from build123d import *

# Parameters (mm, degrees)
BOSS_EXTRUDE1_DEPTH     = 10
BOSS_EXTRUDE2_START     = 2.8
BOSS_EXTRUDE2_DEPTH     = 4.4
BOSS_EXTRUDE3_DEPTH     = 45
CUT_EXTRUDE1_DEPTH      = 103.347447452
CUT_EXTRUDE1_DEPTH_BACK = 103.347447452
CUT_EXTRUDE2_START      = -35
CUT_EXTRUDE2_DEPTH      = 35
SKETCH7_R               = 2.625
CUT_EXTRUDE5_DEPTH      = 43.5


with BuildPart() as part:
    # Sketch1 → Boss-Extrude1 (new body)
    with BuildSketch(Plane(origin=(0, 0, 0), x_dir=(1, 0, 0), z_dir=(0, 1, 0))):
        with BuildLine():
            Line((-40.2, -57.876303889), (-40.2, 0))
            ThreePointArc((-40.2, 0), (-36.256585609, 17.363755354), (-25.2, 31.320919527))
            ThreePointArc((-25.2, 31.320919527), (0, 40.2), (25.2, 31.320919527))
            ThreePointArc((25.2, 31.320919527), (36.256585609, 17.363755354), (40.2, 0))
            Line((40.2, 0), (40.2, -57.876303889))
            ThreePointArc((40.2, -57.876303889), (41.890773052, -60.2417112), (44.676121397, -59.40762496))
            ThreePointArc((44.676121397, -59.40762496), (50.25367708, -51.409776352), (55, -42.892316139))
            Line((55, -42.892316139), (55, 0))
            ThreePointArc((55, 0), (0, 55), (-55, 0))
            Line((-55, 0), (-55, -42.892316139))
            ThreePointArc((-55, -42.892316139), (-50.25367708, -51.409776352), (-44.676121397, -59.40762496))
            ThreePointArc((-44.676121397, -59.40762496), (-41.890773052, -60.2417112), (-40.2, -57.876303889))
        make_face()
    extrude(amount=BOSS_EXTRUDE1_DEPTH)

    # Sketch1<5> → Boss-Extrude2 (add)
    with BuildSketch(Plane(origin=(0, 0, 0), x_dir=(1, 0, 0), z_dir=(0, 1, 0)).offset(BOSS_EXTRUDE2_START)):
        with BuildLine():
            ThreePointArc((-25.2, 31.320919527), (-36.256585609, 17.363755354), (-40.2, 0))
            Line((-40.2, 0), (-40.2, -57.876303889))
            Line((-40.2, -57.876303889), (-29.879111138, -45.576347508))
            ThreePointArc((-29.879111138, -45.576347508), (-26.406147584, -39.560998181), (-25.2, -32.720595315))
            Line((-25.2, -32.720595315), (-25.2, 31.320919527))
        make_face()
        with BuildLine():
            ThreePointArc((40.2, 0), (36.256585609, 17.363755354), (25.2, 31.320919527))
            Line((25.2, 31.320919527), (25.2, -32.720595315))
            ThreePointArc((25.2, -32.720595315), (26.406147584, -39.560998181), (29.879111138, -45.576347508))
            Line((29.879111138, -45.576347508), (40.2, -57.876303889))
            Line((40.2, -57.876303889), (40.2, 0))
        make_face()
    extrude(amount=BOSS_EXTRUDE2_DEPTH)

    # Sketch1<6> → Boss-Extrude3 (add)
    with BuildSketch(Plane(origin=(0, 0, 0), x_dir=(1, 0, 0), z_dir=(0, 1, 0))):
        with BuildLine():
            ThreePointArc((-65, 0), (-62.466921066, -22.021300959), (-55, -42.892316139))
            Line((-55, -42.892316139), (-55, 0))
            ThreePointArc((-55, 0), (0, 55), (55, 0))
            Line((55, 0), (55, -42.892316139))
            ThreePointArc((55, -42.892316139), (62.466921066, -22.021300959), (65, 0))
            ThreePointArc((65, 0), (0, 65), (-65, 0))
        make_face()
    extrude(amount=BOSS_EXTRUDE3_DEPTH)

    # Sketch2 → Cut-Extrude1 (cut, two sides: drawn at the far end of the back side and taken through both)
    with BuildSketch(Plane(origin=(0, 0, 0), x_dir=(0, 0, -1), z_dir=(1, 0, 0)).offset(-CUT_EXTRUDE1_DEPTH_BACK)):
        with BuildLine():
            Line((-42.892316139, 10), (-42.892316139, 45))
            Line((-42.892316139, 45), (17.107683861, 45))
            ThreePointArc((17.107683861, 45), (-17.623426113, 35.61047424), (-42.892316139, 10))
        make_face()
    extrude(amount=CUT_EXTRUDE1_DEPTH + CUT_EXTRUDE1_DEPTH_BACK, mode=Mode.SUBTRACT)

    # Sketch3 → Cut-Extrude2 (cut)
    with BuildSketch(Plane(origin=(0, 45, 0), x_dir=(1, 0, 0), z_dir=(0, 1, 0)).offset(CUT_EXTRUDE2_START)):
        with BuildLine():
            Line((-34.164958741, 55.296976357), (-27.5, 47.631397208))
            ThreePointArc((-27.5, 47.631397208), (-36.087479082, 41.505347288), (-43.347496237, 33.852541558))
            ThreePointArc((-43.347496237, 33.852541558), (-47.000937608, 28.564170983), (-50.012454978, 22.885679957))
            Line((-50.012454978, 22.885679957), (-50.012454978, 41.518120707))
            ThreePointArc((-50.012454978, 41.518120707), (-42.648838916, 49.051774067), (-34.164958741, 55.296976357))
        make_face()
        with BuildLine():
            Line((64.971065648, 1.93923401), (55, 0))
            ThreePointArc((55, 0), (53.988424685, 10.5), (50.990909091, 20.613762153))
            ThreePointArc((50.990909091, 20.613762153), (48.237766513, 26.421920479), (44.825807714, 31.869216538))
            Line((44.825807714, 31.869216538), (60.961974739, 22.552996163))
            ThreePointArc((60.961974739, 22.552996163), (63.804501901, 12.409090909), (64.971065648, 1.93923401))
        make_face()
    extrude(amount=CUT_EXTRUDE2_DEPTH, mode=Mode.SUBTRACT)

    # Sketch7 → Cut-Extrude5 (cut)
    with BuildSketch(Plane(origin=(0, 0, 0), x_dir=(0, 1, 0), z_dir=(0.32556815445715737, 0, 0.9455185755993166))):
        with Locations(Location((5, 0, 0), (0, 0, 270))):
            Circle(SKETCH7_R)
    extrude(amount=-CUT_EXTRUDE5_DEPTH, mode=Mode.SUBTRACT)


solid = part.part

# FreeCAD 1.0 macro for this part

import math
import FreeCAD as App
import Part
import Sketcher
from FreeCAD import Vector
Q = App.Units.Quantity

doc = App.newDocument("Part")
body = doc.addObject("PartDesign::Body", "Body")

# Sketch on XZ plane
sketch1 = body.newObject("Sketcher::SketchObject", "Sketch")
sketch1.AttachmentSupport = (doc.getObject("XZ_Plane"), [""])
sketch1.MapMode = "FlatFace"
sketch1.addGeometry(Part.LineSegment(Vector(-40.2, 57.9, 0), Vector(-40.2, 0, 0)), False)
sketch1.addGeometry(Part.ArcOfCircle(Part.Circle(Vector(0, 0, 0), Vector(0, 0, 1), 40.2), math.radians(180), math.radians(231)), False)
sketch1.addGeometry(Part.ArcOfCircle(Part.Circle(Vector(0, 0, 0), Vector(0, 0, 1), 40.2), math.radians(-129), math.radians(-51)), False)
sketch1.addGeometry(Part.ArcOfCircle(Part.Circle(Vector(0, 0, 0), Vector(0, 0, 1), 40.2), math.radians(-51), math.radians(0)), False)
sketch1.addGeometry(Part.LineSegment(Vector(40.2, 0, 0), Vector(40.2, 57.9, 0)), False)
sketch1.addGeometry(Part.ArcOfCircle(Part.Circle(Vector(42.7, 57.9, 0), Vector(0, 0, 1), 2.5), math.radians(38), math.radians(180)), False)
sketch1.addGeometry(Part.ArcOfCircle(Part.Circle(Vector(-32, 0, 0), Vector(0, 0, 1), 97), math.radians(26.25), math.radians(37.77)), False)
sketch1.addGeometry(Part.LineSegment(Vector(55, 42.9, 0), Vector(55, 0, 0)), False)
sketch1.addGeometry(Part.ArcOfCircle(Part.Circle(Vector(0, 0, 0), Vector(0, 0, 1), 55), math.radians(180), math.radians(360)), False)
sketch1.addGeometry(Part.LineSegment(Vector(-55, 0, 0), Vector(-55, 42.9, 0)), False)
sketch1.addGeometry(Part.ArcOfCircle(Part.Circle(Vector(32, 0, 0), Vector(0, 0, 1), 97), math.radians(142.23), math.radians(153.75)), False)
sketch1.addGeometry(Part.ArcOfCircle(Part.Circle(Vector(-42.7, 57.9, 0), Vector(0, 0, 1), 2.5), math.radians(0), math.radians(142)), False)
sketch1.addConstraint(Sketcher.Constraint("Tangent", 0, 2, 1, 1))
sketch1.addConstraint(Sketcher.Constraint("Tangent", 1, 2, 2, 1))
sketch1.addConstraint(Sketcher.Constraint("Tangent", 2, 2, 3, 1))
sketch1.addConstraint(Sketcher.Constraint("Tangent", 3, 2, 4, 1))
sketch1.addConstraint(Sketcher.Constraint("Tangent", 4, 2, 5, 2))
sketch1.addConstraint(Sketcher.Constraint("Tangent", 5, 1, 6, 2))
sketch1.addConstraint(Sketcher.Constraint("Coincident", 6, 1, 7, 1))
sketch1.addConstraint(Sketcher.Constraint("Tangent", 7, 2, 8, 2))
sketch1.addConstraint(Sketcher.Constraint("Tangent", 8, 1, 9, 1))
sketch1.addConstraint(Sketcher.Constraint("Coincident", 9, 2, 10, 2))
sketch1.addConstraint(Sketcher.Constraint("Tangent", 10, 1, 11, 2))
sketch1.addConstraint(Sketcher.Constraint("Tangent", 11, 1, 0, 1))
sketch1.addConstraint(Sketcher.Constraint("Vertical", 0))
sketch1.addConstraint(Sketcher.Constraint("Vertical", 4))
sketch1.addConstraint(Sketcher.Constraint("Vertical", 7))
sketch1.addConstraint(Sketcher.Constraint("Vertical", 9))
sketch1.addConstraint(Sketcher.Constraint("Coincident", 1, 3, -1, 1))
sketch1.addConstraint(Sketcher.Constraint("Coincident", 3, 3, -1, 1))
sketch1.addConstraint(Sketcher.Constraint("Coincident", 8, 3, -1, 1))
sketch1.addConstraint(Sketcher.Constraint("Equal", 6, 10))
sketch1.addConstraint(Sketcher.Constraint("Equal", 5, 11))
sketch1.addConstraint(Sketcher.Constraint("Symmetric", 6, 3, 10, 3, -1, 1))
sketch1.addConstraint(Sketcher.Constraint("PointOnObject", 6, 3, -1))
sketch1.addConstraint(Sketcher.Constraint("Horizontal", 1, 2, 2, 2))
sketch1.addConstraint(Sketcher.Constraint("Radius", 8, Q("55 mm")))
sketch1.addConstraint(Sketcher.Constraint("Radius", 1, Q("40.2 mm")))
sketch1.addConstraint(Sketcher.Constraint("Radius", 5, Q("2.5 mm")))
sketch1.addConstraint(Sketcher.Constraint("DistanceX", 0, 2, 1, 2, Q("15 mm")))
sketch1.addConstraint(Sketcher.Constraint("Radius", 6, Q("96.987539 mm")))
sketch1.addConstraint(Sketcher.Constraint("DistanceY", 0, 2, 0, 1, Q("57.876304 mm")))
pad1 = body.newObject("PartDesign::Pad", "Pad")
pad1.Profile = sketch1
pad1.Length = 10
pad1.Reversed = True

# Sketch on XZ plane
sketch2 = body.newObject("Sketcher::SketchObject", "Sketch001")
sketch2.AttachmentSupport = (doc.getObject("XZ_Plane"), [""])
sketch2.MapMode = "FlatFace"
sketch2.AttachmentOffset = App.Placement(Vector(0, 0, -2.8), App.Rotation())
sketch2.addGeometry(Part.ArcOfCircle(Part.Circle(Vector(0, 0, 0), Vector(0, 0, 1), 40), math.radians(180), math.radians(231)), False)
sketch2.addGeometry(Part.LineSegment(Vector(-40, 0, 0), Vector(-40, 58, 0)), False)
sketch2.addGeometry(Part.LineSegment(Vector(-40, 58, 0), Vector(-30, 46, 0)), False)
sketch2.addGeometry(Part.ArcOfCircle(Part.Circle(Vector(-45, 33, 0), Vector(0, 0, 1), 20), math.radians(0), math.radians(40)), False)
sketch2.addGeometry(Part.LineSegment(Vector(-25, 33, 0), Vector(-25, -31, 0)), False)
sketch2.addGeometry(Part.ArcOfCircle(Part.Circle(Vector(0, 0, 0), Vector(0, 0, 1), 40), math.radians(-51), math.radians(0)), False)
sketch2.addGeometry(Part.LineSegment(Vector(25, -31, 0), Vector(25, 33, 0)), False)
sketch2.addGeometry(Part.ArcOfCircle(Part.Circle(Vector(45, 33, 0), Vector(0, 0, 1), 20), math.radians(140), math.radians(180)), False)
sketch2.addGeometry(Part.LineSegment(Vector(30, 46, 0), Vector(40, 58, 0)), False)
sketch2.addGeometry(Part.LineSegment(Vector(40, 58, 0), Vector(40, 0, 0)), False)
sketch2.addConstraint(Sketcher.Constraint("Tangent", 0, 1, 1, 1))
sketch2.addConstraint(Sketcher.Constraint("Coincident", 1, 2, 2, 1))
sketch2.addConstraint(Sketcher.Constraint("Tangent", 2, 2, 3, 2))
sketch2.addConstraint(Sketcher.Constraint("Tangent", 3, 1, 4, 1))
sketch2.addConstraint(Sketcher.Constraint("Coincident", 4, 2, 0, 2))
sketch2.addConstraint(Sketcher.Constraint("Coincident", 5, 1, 6, 1))
sketch2.addConstraint(Sketcher.Constraint("Tangent", 6, 2, 7, 2))
sketch2.addConstraint(Sketcher.Constraint("Tangent", 7, 1, 8, 1))
sketch2.addConstraint(Sketcher.Constraint("Coincident", 8, 2, 9, 1))
sketch2.addConstraint(Sketcher.Constraint("Tangent", 9, 2, 5, 2))
sketch2.addConstraint(Sketcher.Constraint("Vertical", 1))
sketch2.addConstraint(Sketcher.Constraint("Vertical", 4))
sketch2.addConstraint(Sketcher.Constraint("Vertical", 6))
sketch2.addConstraint(Sketcher.Constraint("Vertical", 9))
sketch2.addConstraint(Sketcher.Constraint("Coincident", 0, 3, -1, 1))
sketch2.addConstraint(Sketcher.Constraint("Coincident", 5, 3, -1, 1))
sketch2.addConstraint(Sketcher.Constraint("Equal", 0, 5))
sketch2.addConstraint(Sketcher.Constraint("Equal", 3, 7))
sketch2.addConstraint(Sketcher.Constraint("Symmetric", 3, 3, 7, 3, -2))
sketch2.addConstraint(Sketcher.Constraint("Horizontal", 2, 2, 7, 1))
sketch2.addConstraint(Sketcher.Constraint("Radius", 3, Q("20 mm")))
sketch2.addConstraint(Sketcher.Constraint("Radius", 0, Q("40.2 mm")))
sketch2.addConstraint(Sketcher.Constraint("Angle", 2, Q("-50 deg")))
sketch2.addConstraint(Sketcher.Constraint("DistanceX", 3, 3, 0, 1, Q("5 mm")))
sketch2.addConstraint(Sketcher.Constraint("DistanceY", 1, 1, 1, 2, Q("57.876304 mm")))
pad2 = body.newObject("PartDesign::Pad", "Pad001")
pad2.Profile = sketch2
pad2.Length = 4.4
pad2.Reversed = True

# Sketch on XZ plane
sketch3 = body.newObject("Sketcher::SketchObject", "Sketch002")
sketch3.AttachmentSupport = (doc.getObject("XZ_Plane"), [""])
sketch3.MapMode = "FlatFace"
sketch3.addGeometry(Part.ArcOfCircle(Part.Circle(Vector(32, 0, 0), Vector(0, 0, 1), 97), math.radians(154), math.radians(180)), False)
sketch3.addGeometry(Part.LineSegment(Vector(-55, 43, 0), Vector(-55, 0, 0)), False)
sketch3.addGeometry(Part.ArcOfCircle(Part.Circle(Vector(0, 0, 0), Vector(0, 0, 1), 55), math.radians(180), math.radians(360)), False)
sketch3.addGeometry(Part.LineSegment(Vector(55, 0, 0), Vector(55, 43, 0)), False)
sketch3.addGeometry(Part.ArcOfCircle(Part.Circle(Vector(-32, 0, 0), Vector(0, 0, 1), 97), math.radians(0), math.radians(26)), False)
sketch3.addGeometry(Part.ArcOfCircle(Part.Circle(Vector(0, 0, 0), Vector(0, 0, 1), 65), math.radians(180), math.radians(360)), False)
sketch3.addConstraint(Sketcher.Constraint("Coincident", 0, 1, 1, 1))
sketch3.addConstraint(Sketcher.Constraint("Tangent", 1, 2, 2, 1))
sketch3.addConstraint(Sketcher.Constraint("Tangent", 2, 2, 3, 1))
sketch3.addConstraint(Sketcher.Constraint("Coincident", 3, 2, 4, 2))
sketch3.addConstraint(Sketcher.Constraint("Tangent", 4, 1, 5, 2))
sketch3.addConstraint(Sketcher.Constraint("Tangent", 5, 1, 0, 2))
sketch3.addConstraint(Sketcher.Constraint("Vertical", 1))
sketch3.addConstraint(Sketcher.Constraint("Vertical", 3))
sketch3.addConstraint(Sketcher.Constraint("Coincident", 2, 3, -1, 1))
sketch3.addConstraint(Sketcher.Constraint("Coincident", 5, 3, -1, 1))
sketch3.addConstraint(Sketcher.Constraint("Equal", 0, 4))
sketch3.addConstraint(Sketcher.Constraint("PointOnObject", 0, 3, -1))
sketch3.addConstraint(Sketcher.Constraint("PointOnObject", 4, 3, -1))
sketch3.addConstraint(Sketcher.Constraint("Radius", 2, Q("55 mm")))
sketch3.addConstraint(Sketcher.Constraint("Radius", 5, Q("65 mm")))
sketch3.addConstraint(Sketcher.Constraint("Radius", 0, Q("96.987539 mm")))
pad3 = body.newObject("PartDesign::Pad", "Pad002")
pad3.Profile = sketch3
pad3.Length = 45
pad3.Reversed = True

# Sketch on YZ plane
sketch4 = body.newObject("Sketcher::SketchObject", "Sketch003")
sketch4.AttachmentSupport = (doc.getObject("YZ_Plane"), [""])
sketch4.MapMode = "FlatFace"
sketch4.addGeometry(Part.LineSegment(Vector(45, 43, 0), Vector(10, 43, 0)), False)
sketch4.addGeometry(Part.ArcOfCircle(Part.Circle(Vector(-24, -17, 0), Vector(0, 0, 1), 69), math.radians(0), math.radians(61)), False)
sketch4.addGeometry(Part.LineSegment(Vector(45, -17, 0), Vector(45, 43, 0)), False)
sketch4.addConstraint(Sketcher.Constraint("Coincident", 0, 2, 1, 2))
sketch4.addConstraint(Sketcher.Constraint("Tangent", 1, 1, 2, 1))
sketch4.addConstraint(Sketcher.Constraint("Coincident", 2, 2, 0, 1))
sketch4.addConstraint(Sketcher.Constraint("Horizontal", 0))
sketch4.addConstraint(Sketcher.Constraint("Vertical", 2))
sketch4.addConstraint(Sketcher.Constraint("DistanceX", 0, 2, 0, 1, Q("35 mm")))
sketch4.addConstraint(Sketcher.Constraint("DistanceY", 2, 1, 2, 2, Q("60 mm")))
sketch4.addConstraint(Sketcher.Constraint("DistanceX", -1, 1, 0, 2, Q("10 mm")))
sketch4.addConstraint(Sketcher.Constraint("DistanceY", 1, 3, -1, 1, Q("17.107684 mm")))
pocket1 = body.newObject("PartDesign::Pocket", "Pocket")
pocket1.Profile = sketch4
pocket1.Type = "ThroughAll"
pocket1.Midplane = True

# Sketch on XZ plane
sketch5 = body.newObject("Sketcher::SketchObject", "Sketch004")
sketch5.AttachmentSupport = (doc.getObject("XZ_Plane"), [""])
sketch5.MapMode = "FlatFace"
sketch5.AttachmentOffset = App.Placement(Vector(0, 0, -10), App.Rotation())
sketch5.addGeometry(Part.LineSegment(Vector(-28, -48, 0), Vector(-34, -55, 0)), False)
sketch5.addGeometry(Part.ArcOfCircle(Part.Circle(Vector(0, 0, 0), Vector(0, 0, 1), 65), math.radians(-140.3), math.radians(-121.71)), False)
sketch5.addGeometry(Part.LineSegment(Vector(-50, -42, 0), Vector(-50, -23, 0)), False)
sketch5.addGeometry(Part.ArcOfCircle(Part.Circle(Vector(0, 0, 0), Vector(0, 0, 1), 55), math.radians(-155.41), math.radians(-142.01)), False)
sketch5.addGeometry(Part.ArcOfCircle(Part.Circle(Vector(0, 0, 0), Vector(0, 0, 1), 55), math.radians(-142), math.radians(-120)), False)
sketch5.addGeometry(Part.LineSegment(Vector(55, 0, 0), Vector(65, -2, 0)), False)
sketch5.addGeometry(Part.ArcOfCircle(Part.Circle(Vector(0, 0, 0), Vector(0, 0, 1), 65), math.radians(-20.3), math.radians(-1.71)), False)
sketch5.addGeometry(Part.LineSegment(Vector(61, -23, 0), Vector(45, -32, 0)), False)
sketch5.addGeometry(Part.ArcOfCircle(Part.Circle(Vector(0, 0, 0), Vector(0, 0, 1), 55), math.radians(-35.41), math.radians(-22.01)), False)
sketch5.addGeometry(Part.ArcOfCircle(Part.Circle(Vector(0, 0, 0), Vector(0, 0, 1), 55), math.radians(-22), math.radians(0)), False)
sketch5.addConstraint(Sketcher.Constraint("Coincident", 0, 2, 1, 2))
sketch5.addConstraint(Sketcher.Constraint("Coincident", 1, 1, 2, 1))
sketch5.addConstraint(Sketcher.Constraint("Coincident", 2, 2, 3, 1))
sketch5.addConstraint(Sketcher.Constraint("Tangent", 3, 2, 4, 1))
sketch5.addConstraint(Sketcher.Constraint("Coincident", 4, 2, 0, 1))
sketch5.addConstraint(Sketcher.Constraint("Coincident", 5, 2, 6, 2))
sketch5.addConstraint(Sketcher.Constraint("Coincident", 6, 1, 7, 1))
sketch5.addConstraint(Sketcher.Constraint("Coincident", 7, 2, 8, 1))
sketch5.addConstraint(Sketcher.Constraint("Tangent", 8, 2, 9, 1))
sketch5.addConstraint(Sketcher.Constraint("Coincident", 9, 2, 5, 1))
sketch5.addConstraint(Sketcher.Constraint("Vertical", 2))
sketch5.addConstraint(Sketcher.Constraint("Coincident", 1, 3, -1, 1))
sketch5.addConstraint(Sketcher.Constraint("Coincident", 3, 3, -1, 1))
sketch5.addConstraint(Sketcher.Constraint("Coincident", 6, 3, -1, 1))
sketch5.addConstraint(Sketcher.Constraint("Coincident", 8, 3, -1, 1))
sketch5.addConstraint(Sketcher.Constraint("Equal", 3, 4))
sketch5.addConstraint(Sketcher.Constraint("Equal", 1, 6))
sketch5.addConstraint(Sketcher.Constraint("Equal", 4, 8))
sketch5.addConstraint(Sketcher.Constraint("Equal", 8, 9))
sketch5.addConstraint(Sketcher.Constraint("PointOnObject", 9, 2, -1))
sketch5.addConstraint(Sketcher.Constraint("Equal", 0, 5))
sketch5.addConstraint(Sketcher.Constraint("Radius", 1, Q("65 mm")))
sketch5.addConstraint(Sketcher.Constraint("Radius", 3, Q("55 mm")))
sketch5.addConstraint(Sketcher.Constraint("Angle", 7, Q("-150 deg")))
sketch5.addConstraint(Sketcher.Constraint("DistanceX", 4, 2, -1, 1, Q("27.5 mm")))
sketch5.addConstraint(Sketcher.Constraint("DistanceY", 2, 1, 2, 2, Q("18.632441 mm")))
sketch5.addConstraint(Sketcher.Constraint("DistanceX", 7, 2, 8, 2, Q("6.165101 mm")))
sketch5.addConstraint(Sketcher.Constraint("Distance", 7, Q("18.632441 mm")))
sketch5.addConstraint(Sketcher.Constraint("DistanceX", 0, 2, -1, 1, Q("34.164959 mm")))
sketch5.addConstraint(Sketcher.Constraint("DistanceY", 3, 2, -1, 1, Q("33.852542 mm")))
pocket2 = body.newObject("PartDesign::Pocket", "Pocket001")
pocket2.Profile = sketch5
pocket2.Length = 35

# Sketch on an angled plane
sketch6 = body.newObject("Sketcher::SketchObject", "Sketch005")
sketch6.Placement = App.Placement(Vector(0, 0, 0), App.Rotation(Vector(0, 1, 0), Vector(-0.945518576, 0, 0.325568154), Vector(0.325568154, 0, 0.945518576), "ZXY"))
sketch6.addGeometry(Part.Circle(Vector(5, 0, 0), Vector(0, 0, 1), 2.6), False)
sketch6.addConstraint(Sketcher.Constraint("PointOnObject", 0, 3, -1))
sketch6.addConstraint(Sketcher.Constraint("Diameter", 0, Q("5.25 mm")))
sketch6.addConstraint(Sketcher.Constraint("DistanceX", -1, 1, 0, 3, Q("5 mm")))
pocket3 = body.newObject("PartDesign::Pocket", "Pocket002")
pocket3.Profile = sketch6
pocket3.Length = 43.5

doc.recompute()
